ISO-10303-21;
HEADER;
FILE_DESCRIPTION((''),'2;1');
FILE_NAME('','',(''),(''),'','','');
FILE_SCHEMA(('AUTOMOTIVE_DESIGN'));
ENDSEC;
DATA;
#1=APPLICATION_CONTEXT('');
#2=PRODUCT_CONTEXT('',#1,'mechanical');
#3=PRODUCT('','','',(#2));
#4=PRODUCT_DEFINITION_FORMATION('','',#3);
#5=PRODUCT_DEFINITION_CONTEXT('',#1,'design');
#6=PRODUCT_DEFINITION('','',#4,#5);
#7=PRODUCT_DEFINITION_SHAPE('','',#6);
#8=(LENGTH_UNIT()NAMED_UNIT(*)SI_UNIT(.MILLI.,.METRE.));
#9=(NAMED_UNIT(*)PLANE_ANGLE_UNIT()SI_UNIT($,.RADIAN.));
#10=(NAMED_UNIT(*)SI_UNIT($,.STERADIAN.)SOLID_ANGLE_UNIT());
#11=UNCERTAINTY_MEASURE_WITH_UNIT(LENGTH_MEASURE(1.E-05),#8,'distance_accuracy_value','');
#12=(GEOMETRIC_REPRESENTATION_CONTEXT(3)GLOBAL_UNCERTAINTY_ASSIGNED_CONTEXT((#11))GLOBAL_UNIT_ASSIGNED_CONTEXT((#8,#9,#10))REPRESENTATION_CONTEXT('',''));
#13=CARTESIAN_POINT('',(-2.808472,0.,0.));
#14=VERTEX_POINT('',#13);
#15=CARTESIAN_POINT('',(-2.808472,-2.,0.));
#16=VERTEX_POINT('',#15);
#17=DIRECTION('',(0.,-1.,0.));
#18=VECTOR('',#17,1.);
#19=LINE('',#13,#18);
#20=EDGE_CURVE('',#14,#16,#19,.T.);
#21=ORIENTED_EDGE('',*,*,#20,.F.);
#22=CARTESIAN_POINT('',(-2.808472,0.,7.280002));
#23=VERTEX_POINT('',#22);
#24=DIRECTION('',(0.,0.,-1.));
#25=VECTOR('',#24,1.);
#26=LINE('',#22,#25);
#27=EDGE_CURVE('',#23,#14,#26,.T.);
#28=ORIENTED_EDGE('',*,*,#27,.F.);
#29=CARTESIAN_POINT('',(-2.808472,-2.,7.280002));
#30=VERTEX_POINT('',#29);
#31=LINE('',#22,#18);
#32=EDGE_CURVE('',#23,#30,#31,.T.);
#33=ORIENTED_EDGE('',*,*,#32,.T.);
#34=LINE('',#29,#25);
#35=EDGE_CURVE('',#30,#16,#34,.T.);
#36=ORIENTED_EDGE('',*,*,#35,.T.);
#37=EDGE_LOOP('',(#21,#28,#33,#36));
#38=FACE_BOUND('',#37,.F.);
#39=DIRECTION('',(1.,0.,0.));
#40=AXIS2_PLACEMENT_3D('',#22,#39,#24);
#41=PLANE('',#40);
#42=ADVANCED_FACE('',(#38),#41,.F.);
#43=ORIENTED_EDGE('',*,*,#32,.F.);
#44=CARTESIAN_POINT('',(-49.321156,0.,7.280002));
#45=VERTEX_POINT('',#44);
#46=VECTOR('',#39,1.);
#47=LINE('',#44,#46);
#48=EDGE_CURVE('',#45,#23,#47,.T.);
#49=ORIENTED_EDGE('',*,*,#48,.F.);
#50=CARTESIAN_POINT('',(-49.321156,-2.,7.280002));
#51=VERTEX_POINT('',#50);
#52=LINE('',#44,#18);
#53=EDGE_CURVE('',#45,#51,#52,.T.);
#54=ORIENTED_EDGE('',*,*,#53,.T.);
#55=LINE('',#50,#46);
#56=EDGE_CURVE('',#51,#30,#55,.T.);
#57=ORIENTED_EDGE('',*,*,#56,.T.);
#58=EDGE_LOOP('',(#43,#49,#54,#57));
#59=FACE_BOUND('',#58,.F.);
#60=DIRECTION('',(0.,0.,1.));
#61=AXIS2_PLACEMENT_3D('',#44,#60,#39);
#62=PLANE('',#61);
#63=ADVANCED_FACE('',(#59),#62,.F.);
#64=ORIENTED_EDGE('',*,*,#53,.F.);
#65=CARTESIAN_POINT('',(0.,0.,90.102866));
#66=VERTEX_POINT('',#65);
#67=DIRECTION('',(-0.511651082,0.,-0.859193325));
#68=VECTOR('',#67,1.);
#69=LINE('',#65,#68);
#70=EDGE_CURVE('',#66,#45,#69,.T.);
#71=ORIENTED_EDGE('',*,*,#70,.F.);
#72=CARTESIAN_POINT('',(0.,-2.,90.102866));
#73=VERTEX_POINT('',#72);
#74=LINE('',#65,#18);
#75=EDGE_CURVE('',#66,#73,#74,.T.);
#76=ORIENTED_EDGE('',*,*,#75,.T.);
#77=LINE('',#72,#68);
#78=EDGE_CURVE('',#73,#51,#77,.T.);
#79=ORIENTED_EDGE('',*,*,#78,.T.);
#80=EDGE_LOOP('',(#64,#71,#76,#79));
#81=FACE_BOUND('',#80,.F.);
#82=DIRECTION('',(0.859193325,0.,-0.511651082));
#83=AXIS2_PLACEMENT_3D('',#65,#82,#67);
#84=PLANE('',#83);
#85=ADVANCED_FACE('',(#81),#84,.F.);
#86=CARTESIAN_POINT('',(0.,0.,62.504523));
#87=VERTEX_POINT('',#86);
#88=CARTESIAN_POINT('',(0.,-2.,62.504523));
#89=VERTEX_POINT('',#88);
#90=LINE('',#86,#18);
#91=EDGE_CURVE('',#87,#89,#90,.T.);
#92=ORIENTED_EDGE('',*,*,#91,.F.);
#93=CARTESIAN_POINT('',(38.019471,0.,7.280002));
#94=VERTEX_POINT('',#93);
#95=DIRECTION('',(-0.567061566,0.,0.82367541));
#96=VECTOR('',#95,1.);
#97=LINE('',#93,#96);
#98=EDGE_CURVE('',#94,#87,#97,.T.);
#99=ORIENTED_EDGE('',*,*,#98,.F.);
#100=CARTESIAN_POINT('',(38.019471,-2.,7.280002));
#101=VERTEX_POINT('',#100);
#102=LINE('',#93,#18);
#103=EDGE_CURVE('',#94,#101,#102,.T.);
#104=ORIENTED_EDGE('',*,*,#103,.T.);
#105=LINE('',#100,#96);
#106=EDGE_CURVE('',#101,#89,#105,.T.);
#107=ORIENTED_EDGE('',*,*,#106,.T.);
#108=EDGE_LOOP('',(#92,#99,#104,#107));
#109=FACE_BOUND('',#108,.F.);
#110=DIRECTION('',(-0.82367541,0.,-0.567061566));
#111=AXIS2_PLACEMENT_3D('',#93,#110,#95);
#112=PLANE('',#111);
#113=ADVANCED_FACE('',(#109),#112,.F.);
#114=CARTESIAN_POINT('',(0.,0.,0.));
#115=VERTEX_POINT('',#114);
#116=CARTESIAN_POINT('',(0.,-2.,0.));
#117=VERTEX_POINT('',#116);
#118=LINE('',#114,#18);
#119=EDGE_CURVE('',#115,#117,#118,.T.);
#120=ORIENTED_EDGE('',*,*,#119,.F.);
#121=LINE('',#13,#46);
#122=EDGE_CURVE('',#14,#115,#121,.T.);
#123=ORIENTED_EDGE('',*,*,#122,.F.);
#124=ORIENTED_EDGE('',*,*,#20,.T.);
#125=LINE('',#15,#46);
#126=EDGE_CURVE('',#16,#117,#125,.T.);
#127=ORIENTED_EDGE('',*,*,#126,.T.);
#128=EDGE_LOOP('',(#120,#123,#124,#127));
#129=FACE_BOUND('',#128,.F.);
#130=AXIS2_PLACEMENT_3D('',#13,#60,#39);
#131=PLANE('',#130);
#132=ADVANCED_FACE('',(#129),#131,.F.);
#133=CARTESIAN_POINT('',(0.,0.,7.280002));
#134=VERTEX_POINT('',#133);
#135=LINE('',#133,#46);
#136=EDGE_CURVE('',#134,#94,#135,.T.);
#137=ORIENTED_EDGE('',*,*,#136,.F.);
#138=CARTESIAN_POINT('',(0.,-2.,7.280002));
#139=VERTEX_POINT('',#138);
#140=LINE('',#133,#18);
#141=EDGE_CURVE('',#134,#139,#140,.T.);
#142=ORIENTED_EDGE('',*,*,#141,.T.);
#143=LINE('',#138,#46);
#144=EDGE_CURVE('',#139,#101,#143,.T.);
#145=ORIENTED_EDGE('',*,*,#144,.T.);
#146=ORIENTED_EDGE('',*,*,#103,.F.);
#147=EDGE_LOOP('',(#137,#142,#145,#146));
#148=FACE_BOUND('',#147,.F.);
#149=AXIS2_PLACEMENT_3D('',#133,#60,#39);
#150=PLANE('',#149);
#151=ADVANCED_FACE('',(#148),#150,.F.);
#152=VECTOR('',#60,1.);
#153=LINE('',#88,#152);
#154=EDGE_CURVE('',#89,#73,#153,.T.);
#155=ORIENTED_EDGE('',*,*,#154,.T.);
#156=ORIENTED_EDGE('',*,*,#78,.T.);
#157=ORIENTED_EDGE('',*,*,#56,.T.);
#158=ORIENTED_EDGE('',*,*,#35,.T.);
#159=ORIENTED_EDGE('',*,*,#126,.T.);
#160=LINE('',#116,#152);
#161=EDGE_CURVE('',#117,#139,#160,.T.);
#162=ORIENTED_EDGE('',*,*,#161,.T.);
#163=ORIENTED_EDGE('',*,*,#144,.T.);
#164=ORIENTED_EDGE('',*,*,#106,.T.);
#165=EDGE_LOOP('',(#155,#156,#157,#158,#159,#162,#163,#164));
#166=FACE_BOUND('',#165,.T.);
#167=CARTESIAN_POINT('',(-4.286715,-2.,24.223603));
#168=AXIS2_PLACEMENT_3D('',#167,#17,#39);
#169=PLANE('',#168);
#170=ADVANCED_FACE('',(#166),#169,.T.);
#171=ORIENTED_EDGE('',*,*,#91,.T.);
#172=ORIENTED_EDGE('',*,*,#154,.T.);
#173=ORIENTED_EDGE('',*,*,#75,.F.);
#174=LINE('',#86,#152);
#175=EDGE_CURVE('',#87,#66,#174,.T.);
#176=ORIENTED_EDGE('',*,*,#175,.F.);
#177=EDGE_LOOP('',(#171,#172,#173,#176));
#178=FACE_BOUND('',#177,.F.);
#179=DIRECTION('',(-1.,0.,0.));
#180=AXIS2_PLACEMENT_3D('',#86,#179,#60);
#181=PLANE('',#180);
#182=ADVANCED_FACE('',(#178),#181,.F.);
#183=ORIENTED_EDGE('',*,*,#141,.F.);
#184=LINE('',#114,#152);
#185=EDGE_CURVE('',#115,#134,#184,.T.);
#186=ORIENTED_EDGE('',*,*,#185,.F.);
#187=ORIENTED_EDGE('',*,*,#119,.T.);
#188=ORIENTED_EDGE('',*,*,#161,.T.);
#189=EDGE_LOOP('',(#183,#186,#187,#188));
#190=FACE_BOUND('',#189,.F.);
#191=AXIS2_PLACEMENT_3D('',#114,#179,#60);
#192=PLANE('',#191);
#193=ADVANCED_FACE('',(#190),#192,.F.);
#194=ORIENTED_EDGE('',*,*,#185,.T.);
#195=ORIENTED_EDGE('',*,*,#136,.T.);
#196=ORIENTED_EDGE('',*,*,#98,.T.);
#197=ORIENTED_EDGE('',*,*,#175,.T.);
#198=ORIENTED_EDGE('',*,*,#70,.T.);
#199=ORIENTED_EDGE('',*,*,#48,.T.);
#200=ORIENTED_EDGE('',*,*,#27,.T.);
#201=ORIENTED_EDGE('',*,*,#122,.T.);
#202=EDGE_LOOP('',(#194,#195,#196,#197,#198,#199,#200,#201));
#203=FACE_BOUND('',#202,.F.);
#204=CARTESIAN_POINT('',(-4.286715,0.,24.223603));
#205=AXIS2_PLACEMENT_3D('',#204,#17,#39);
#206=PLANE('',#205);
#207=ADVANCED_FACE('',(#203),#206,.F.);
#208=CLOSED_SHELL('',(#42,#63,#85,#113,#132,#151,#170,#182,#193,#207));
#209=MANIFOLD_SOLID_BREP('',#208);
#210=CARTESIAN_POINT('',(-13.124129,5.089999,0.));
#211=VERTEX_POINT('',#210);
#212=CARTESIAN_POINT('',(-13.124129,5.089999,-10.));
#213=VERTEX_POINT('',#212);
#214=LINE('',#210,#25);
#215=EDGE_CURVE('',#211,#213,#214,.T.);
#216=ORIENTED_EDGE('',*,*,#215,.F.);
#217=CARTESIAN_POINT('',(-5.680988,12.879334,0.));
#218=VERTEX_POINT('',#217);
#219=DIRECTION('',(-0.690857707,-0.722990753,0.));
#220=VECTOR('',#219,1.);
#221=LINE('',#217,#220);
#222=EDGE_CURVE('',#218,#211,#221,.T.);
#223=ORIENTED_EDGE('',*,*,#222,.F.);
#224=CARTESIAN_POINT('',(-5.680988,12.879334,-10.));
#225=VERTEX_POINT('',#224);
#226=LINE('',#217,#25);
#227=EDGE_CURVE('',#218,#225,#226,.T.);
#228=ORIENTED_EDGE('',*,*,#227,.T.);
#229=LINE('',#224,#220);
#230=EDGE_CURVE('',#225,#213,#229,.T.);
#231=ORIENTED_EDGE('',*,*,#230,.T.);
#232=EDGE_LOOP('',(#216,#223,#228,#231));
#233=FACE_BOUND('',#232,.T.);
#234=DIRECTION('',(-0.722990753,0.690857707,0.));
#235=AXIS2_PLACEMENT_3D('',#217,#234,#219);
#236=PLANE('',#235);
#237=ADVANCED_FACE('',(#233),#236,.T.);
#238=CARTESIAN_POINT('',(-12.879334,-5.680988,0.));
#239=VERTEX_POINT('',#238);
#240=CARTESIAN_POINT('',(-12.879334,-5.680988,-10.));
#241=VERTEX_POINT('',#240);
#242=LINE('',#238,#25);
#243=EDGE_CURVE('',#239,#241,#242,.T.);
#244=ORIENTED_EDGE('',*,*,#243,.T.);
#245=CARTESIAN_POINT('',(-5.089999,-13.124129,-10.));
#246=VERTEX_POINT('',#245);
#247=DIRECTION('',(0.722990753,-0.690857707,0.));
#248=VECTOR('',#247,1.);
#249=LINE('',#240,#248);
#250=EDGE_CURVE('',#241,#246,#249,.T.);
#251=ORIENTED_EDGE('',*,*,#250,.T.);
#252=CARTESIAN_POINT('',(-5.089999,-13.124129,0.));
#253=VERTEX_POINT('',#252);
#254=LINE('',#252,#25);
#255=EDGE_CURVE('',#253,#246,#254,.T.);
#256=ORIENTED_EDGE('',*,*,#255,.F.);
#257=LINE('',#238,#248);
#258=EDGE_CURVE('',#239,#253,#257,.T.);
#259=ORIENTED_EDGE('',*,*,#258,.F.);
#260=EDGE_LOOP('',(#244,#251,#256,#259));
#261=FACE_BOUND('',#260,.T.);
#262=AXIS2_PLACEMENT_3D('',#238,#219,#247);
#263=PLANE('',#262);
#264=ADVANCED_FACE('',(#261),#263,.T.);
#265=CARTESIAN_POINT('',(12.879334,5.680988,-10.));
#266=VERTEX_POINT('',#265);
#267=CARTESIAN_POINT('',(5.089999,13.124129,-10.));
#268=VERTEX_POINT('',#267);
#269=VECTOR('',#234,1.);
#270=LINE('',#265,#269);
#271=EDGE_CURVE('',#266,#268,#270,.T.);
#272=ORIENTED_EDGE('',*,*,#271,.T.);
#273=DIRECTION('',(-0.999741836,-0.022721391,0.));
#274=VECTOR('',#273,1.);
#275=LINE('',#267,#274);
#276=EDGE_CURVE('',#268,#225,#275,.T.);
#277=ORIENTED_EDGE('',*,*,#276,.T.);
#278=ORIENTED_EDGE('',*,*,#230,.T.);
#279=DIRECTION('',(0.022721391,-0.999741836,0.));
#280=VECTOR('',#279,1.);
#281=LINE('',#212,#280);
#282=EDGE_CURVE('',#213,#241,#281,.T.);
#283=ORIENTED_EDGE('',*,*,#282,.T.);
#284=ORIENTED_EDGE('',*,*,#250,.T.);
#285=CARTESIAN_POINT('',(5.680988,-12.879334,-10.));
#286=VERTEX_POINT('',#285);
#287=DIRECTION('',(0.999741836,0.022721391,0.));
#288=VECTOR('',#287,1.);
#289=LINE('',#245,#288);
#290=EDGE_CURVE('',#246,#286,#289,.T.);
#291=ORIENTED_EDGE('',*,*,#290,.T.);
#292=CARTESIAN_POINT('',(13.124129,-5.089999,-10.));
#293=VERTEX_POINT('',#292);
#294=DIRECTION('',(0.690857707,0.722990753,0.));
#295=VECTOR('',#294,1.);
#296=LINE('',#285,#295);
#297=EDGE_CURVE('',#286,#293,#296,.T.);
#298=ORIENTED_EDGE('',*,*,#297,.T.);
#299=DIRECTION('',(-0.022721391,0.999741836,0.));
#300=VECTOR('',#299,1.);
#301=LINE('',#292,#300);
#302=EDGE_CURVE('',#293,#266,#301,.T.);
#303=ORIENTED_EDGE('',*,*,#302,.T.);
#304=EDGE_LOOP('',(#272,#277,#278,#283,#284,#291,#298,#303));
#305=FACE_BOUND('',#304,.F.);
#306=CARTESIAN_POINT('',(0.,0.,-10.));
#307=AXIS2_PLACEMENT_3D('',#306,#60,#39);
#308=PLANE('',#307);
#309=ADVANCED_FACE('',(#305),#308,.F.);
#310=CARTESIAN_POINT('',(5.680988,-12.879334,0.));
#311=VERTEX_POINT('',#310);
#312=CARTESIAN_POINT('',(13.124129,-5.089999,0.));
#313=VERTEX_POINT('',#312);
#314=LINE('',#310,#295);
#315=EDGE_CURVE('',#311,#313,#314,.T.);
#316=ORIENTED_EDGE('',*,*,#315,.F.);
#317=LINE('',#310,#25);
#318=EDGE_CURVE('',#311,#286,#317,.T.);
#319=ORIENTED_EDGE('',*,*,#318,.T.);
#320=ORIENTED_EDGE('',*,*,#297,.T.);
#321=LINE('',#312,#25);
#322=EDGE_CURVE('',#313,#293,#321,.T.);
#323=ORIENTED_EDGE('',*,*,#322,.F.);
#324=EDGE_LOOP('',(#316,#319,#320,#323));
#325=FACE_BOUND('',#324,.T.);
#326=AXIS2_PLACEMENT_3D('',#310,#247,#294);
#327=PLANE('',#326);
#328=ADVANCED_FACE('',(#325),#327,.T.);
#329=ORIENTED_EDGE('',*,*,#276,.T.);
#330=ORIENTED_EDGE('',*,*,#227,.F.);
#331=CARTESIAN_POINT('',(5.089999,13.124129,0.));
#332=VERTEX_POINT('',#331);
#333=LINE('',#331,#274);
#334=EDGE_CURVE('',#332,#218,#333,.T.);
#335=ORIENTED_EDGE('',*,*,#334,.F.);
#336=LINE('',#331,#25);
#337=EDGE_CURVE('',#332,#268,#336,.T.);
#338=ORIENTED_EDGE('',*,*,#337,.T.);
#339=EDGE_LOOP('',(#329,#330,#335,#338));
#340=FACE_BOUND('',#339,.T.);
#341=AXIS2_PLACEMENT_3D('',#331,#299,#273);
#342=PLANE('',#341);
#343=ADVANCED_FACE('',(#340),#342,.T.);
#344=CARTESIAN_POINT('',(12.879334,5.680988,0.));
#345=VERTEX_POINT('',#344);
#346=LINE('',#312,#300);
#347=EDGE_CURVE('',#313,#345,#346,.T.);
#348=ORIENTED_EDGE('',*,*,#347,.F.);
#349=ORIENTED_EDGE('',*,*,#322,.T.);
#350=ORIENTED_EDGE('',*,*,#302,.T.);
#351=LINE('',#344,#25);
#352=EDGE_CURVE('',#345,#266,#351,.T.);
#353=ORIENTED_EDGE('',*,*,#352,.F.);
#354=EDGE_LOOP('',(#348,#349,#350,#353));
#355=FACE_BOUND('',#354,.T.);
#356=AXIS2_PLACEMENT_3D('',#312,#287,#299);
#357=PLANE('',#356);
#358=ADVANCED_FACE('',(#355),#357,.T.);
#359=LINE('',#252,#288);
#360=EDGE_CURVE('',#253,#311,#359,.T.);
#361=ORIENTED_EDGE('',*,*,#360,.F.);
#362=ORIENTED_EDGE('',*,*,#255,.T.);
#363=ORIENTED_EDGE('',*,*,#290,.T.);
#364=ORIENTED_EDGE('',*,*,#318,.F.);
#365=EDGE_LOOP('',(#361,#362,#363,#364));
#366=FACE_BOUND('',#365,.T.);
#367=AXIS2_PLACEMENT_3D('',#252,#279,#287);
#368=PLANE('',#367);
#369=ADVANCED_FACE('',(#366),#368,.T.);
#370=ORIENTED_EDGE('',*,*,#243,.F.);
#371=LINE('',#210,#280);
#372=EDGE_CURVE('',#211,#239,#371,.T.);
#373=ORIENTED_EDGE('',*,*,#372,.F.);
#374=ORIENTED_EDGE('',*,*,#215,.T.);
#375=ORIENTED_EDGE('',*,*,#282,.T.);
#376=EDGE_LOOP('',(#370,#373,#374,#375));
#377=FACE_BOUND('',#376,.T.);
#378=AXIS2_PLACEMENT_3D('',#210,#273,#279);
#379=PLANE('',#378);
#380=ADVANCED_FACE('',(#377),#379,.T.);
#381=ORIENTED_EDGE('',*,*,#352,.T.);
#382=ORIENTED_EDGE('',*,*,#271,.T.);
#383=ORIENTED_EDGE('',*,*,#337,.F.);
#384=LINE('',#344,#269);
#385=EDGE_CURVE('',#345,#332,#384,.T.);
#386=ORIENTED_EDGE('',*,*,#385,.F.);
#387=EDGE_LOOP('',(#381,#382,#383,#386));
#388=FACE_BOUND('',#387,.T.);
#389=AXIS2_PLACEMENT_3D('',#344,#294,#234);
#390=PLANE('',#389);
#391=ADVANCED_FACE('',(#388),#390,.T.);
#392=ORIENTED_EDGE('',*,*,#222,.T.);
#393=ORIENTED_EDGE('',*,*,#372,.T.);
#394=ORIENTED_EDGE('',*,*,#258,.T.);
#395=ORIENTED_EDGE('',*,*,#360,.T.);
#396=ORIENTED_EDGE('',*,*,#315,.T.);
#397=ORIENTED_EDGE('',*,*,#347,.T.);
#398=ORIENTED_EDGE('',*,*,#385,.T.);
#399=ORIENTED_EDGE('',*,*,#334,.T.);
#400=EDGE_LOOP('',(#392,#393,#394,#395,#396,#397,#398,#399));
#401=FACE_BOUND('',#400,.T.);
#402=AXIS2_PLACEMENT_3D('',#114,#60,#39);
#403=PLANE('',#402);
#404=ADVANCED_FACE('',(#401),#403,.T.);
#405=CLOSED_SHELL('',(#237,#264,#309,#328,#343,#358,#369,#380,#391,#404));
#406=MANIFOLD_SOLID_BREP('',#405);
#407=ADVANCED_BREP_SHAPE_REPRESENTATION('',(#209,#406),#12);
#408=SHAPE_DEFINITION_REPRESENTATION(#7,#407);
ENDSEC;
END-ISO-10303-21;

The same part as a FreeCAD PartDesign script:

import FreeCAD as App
import Part
import Sketcher
from FreeCAD import Vector
Q = App.Units.Quantity

doc = App.newDocument("Part")
body = doc.addObject("PartDesign::Body", "Body")

# Sketch on XY plane
sketch1 = doc.addObject("Sketcher::SketchObject", "Sketch")
body.addObject(sketch1)
sketch1.AttachmentSupport = (doc.XY_Plane, [""])
sketch1.MapMode = "FlatFace"
sketch1.addGeometry(Part.LineSegment(Vector(-5.680988, 12.879334, 0), Vector(-13.124129, 5.089999, 0)), False)
sketch1.addGeometry(Part.LineSegment(Vector(-13.124129, 5.089999, 0), Vector(-12.879334, -5.680988, 0)), False)
sketch1.addGeometry(Part.LineSegment(Vector(-12.879334, -5.680988, 0), Vector(-5.089999, -13.124129, 0)), False)
sketch1.addGeometry(Part.LineSegment(Vector(-5.089999, -13.124129, 0), Vector(5.680988, -12.879334, 0)), False)
sketch1.addGeometry(Part.LineSegment(Vector(5.680988, -12.879334, 0), Vector(13.124129, -5.089999, 0)), False)
sketch1.addGeometry(Part.LineSegment(Vector(13.124129, -5.089999, 0), Vector(12.879334, 5.680988, 0)), False)
sketch1.addGeometry(Part.LineSegment(Vector(12.879334, 5.680988, 0), Vector(5.089999, 13.124129, 0)), False)
sketch1.addGeometry(Part.LineSegment(Vector(5.089999, 13.124129, 0), Vector(-5.680988, 12.879334, 0)), False)
sketch1.addConstraint(Sketcher.Constraint("Coincident", 0, 2, 1, 1))
sketch1.addConstraint(Sketcher.Constraint("Coincident", 1, 2, 2, 1))
sketch1.addConstraint(Sketcher.Constraint("Coincident", 2, 2, 3, 1))
sketch1.addConstraint(Sketcher.Constraint("Coincident", 3, 2, 4, 1))
sketch1.addConstraint(Sketcher.Constraint("Coincident", 4, 2, 5, 1))
sketch1.addConstraint(Sketcher.Constraint("Coincident", 5, 2, 6, 1))
sketch1.addConstraint(Sketcher.Constraint("Coincident", 6, 2, 7, 1))
sketch1.addConstraint(Sketcher.Constraint("Coincident", 7, 2, 0, 1))
sketch1.addConstraint(Sketcher.Constraint("Symmetric", 0, 2, 4, 2, -1, 1))
sketch1.addConstraint(Sketcher.Constraint("Symmetric", 1, 2, 5, 2, -1, 1))
sketch1.addConstraint(Sketcher.Constraint("Symmetric", 2, 2, 6, 2, -1, 1))
sketch1.addConstraint(Sketcher.Constraint("Symmetric", 3, 2, 7, 2, -1, 1))
sketch1.addConstraint(Sketcher.Constraint("Perpendicular", 0, 2))
sketch1.addConstraint(Sketcher.Constraint("Perpendicular", 1, 3))
sketch1.addConstraint(Sketcher.Constraint("Equal", 0, 1))
sketch1.addConstraint(Sketcher.Constraint("Equal", 1, 2))
sketch1.addConstraint(Sketcher.Constraint("Equal", 2, 3))
sketch1.addConstraint(Sketcher.Constraint("DistanceY", -1, 1, 0, 2, Q("5.089999 mm")))
sketch1.addConstraint(Sketcher.Constraint("Distance", 0, Q("10.773768 mm")))
sketch1.addConstraint(Sketcher.Constraint("DistanceX", 0, 2, -1, 1, Q("13.124129 mm")))
pad1 = doc.addObject("PartDesign::Pad", "Pad")
body.addObject(pad1)
pad1.Profile = sketch1
pad1.Length = 10
pad1.Reversed = True
body2 = doc.addObject("PartDesign::Body", "Body001")

# Sketch on XZ plane
sketch2 = doc.addObject("Sketcher::SketchObject", "Sketch001")
body2.addObject(sketch2)
sketch2.AttachmentSupport = (doc.getObject("XZ_Plane001"), [""])
sketch2.MapMode = "FlatFace"
sketch2.addGeometry(Part.LineSegment(Vector(-2.808472, 0, 0), Vector(0, 0, 0)), False)
sketch2.addGeometry(Part.LineSegment(Vector(0, 0, 0), Vector(0, 7.280002, 0)), False)
sketch2.addGeometry(Part.LineSegment(Vector(0, 7.280002, 0), Vector(38.019471, 7.280002, 0)), False)
sketch2.addGeometry(Part.LineSegment(Vector(38.019471, 7.280002, 0), Vector(0, 62.504523, 0)), False)
sketch2.addGeometry(Part.LineSegment(Vector(0, 62.504523, 0), Vector(0, 90.102866, 0)), False)
sketch2.addGeometry(Part.LineSegment(Vector(0, 90.102866, 0), Vector(-49.321156, 7.280002, 0)), False)
sketch2.addGeometry(Part.LineSegment(Vector(-49.321156, 7.280002, 0), Vector(-2.808472, 7.280002, 0)), False)
sketch2.addGeometry(Part.LineSegment(Vector(-2.808472, 7.280002, 0), Vector(-2.808472, 0, 0)), False)
sketch2.addConstraint(Sketcher.Constraint("Coincident", 0, 2, 1, 1))
sketch2.addConstraint(Sketcher.Constraint("Coincident", 1, 2, 2, 1))
sketch2.addConstraint(Sketcher.Constraint("Coincident", 2, 2, 3, 1))
sketch2.addConstraint(Sketcher.Constraint("Coincident", 3, 2, 4, 1))
sketch2.addConstraint(Sketcher.Constraint("Coincident", 4, 2, 5, 1))
sketch2.addConstraint(Sketcher.Constraint("Coincident", 5, 2, 6, 1))
sketch2.addConstraint(Sketcher.Constraint("Coincident", 6, 2, 7, 1))
sketch2.addConstraint(Sketcher.Constraint("Coincident", 7, 2, 0, 1))
sketch2.addConstraint(Sketcher.Constraint("Horizontal", 0))
sketch2.addConstraint(Sketcher.Constraint("Vertical", 1))
sketch2.addConstraint(Sketcher.Constraint("Horizontal", 2))
sketch2.addConstraint(Sketcher.Constraint("Vertical", 4))
sketch2.addConstraint(Sketcher.Constraint("Horizontal", 6))
sketch2.addConstraint(Sketcher.Constraint("Vertical", 7))
sketch2.addConstraint(Sketcher.Constraint("Coincident", 0, 2, -1, 1))
sketch2.addConstraint(Sketcher.Constraint("PointOnObject", 3, 2, -2))
sketch2.addConstraint(Sketcher.Constraint("Horizontal", 2, 2, 5, 2))
sketch2.addConstraint(Sketcher.Constraint("DistanceY", 1, 1, 1, 2, Q("7.280002 mm")))
sketch2.addConstraint(Sketcher.Constraint("DistanceX", 2, 1, 2, 2, Q("38.019471 mm")))
sketch2.addConstraint(Sketcher.Constraint("Distance", 3, Q("67.046461 mm")))
sketch2.addConstraint(Sketcher.Constraint("DistanceX", 0, 1, 0, 2, Q("2.808472 mm")))
sketch2.addConstraint(Sketcher.Constraint("DistanceX", 6, 1, 6, 2, Q("46.512684 mm")))
sketch2.addConstraint(Sketcher.Constraint("DistanceY", 4, 1, 4, 2, Q("27.598343 mm")))
pad2 = doc.addObject("PartDesign::Pad", "Pad001")
body2.addObject(pad2)
pad2.Profile = sketch2
pad2.Length = 2

doc.recompute()
